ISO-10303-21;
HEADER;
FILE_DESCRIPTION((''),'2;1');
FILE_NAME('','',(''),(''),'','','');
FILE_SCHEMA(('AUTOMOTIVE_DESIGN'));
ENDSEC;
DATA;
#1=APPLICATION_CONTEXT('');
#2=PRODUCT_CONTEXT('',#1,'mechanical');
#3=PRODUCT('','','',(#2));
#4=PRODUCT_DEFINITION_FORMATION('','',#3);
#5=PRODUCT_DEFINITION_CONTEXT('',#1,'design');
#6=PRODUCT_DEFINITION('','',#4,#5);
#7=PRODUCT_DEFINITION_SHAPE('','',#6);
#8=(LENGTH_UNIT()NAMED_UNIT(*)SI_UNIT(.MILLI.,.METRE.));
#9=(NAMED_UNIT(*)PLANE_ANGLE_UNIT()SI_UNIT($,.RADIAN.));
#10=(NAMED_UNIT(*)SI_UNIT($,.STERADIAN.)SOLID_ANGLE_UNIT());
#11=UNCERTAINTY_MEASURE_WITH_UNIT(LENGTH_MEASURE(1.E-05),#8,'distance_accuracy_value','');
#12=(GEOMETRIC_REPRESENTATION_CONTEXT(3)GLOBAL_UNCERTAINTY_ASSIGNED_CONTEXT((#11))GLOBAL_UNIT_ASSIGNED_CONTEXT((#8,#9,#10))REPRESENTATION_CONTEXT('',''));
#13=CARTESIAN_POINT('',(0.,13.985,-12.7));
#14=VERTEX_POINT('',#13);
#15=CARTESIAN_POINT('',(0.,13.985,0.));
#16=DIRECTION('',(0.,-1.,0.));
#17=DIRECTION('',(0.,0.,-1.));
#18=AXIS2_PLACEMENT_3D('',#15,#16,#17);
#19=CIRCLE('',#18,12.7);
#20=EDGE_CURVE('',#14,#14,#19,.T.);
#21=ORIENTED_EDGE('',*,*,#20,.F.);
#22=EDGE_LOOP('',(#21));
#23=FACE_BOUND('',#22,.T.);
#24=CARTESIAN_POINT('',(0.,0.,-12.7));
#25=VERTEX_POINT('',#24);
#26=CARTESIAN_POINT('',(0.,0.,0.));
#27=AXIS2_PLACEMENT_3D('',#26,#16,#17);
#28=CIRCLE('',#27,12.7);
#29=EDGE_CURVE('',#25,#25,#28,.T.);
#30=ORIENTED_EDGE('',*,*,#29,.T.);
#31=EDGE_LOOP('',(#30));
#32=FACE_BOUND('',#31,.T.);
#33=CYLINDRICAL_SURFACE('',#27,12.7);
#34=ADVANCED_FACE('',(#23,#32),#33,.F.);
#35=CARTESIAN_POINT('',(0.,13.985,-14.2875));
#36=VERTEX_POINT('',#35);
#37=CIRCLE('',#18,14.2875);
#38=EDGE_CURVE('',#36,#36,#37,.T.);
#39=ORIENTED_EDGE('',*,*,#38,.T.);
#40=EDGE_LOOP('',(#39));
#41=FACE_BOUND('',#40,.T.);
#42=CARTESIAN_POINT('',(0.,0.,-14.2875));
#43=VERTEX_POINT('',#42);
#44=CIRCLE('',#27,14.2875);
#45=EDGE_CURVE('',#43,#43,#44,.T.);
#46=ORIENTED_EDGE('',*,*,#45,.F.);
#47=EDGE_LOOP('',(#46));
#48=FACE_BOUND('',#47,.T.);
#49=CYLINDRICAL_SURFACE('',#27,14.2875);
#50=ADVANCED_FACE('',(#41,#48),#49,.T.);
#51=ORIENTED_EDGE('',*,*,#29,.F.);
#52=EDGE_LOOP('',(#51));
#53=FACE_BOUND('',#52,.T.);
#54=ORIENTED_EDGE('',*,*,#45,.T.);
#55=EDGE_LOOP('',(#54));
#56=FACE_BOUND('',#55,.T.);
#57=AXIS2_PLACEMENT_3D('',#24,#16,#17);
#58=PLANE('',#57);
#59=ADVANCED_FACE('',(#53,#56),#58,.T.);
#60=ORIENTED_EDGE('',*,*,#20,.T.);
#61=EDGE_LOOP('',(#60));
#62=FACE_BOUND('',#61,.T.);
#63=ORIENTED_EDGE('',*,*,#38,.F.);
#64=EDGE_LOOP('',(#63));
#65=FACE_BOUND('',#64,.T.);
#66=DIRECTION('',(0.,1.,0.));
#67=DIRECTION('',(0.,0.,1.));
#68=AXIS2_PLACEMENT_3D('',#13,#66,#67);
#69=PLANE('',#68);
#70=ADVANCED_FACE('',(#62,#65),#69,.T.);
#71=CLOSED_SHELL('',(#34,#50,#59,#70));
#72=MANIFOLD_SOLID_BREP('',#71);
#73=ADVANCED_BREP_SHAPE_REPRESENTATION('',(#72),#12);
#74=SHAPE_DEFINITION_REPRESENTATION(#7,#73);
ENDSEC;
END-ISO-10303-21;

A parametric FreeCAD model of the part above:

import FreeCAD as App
import Part
import Sketcher
from FreeCAD import Vector
Q = App.Units.Quantity

doc = App.newDocument("Part")
body = doc.addObject("PartDesign::Body", "Body")

# Sketch on YZ plane
sketch1 = body.newObject("Sketcher::SketchObject", "Sketch")
sketch1.AttachmentSupport = (doc.getObject("YZ_Plane"), [""])
sketch1.MapMode = "FlatFace"
sketch1.addGeometry([
    Part.LineSegment(Vector(14, -12.7, 0), Vector(0, -12.7, 0)),
    Part.LineSegment(Vector(0, -12.7, 0), Vector(0, -14.3, 0)),
    Part.LineSegment(Vector(0, -14.3, 0), Vector(14, -14.3, 0)),
    Part.LineSegment(Vector(14, -14.3, 0), Vector(14, -12.7, 0)),
], False)
sketch1.addConstraint([
    Sketcher.Constraint("Coincident", 0, 2, 1, 1),
    Sketcher.Constraint("Coincident", 1, 2, 2, 1),
    Sketcher.Constraint("Coincident", 2, 2, 3, 1),
    Sketcher.Constraint("Coincident", 3, 2, 0, 1),
    Sketcher.Constraint("Horizontal", 0),
    Sketcher.Constraint("Vertical", 1),
    Sketcher.Constraint("Horizontal", 2),
    Sketcher.Constraint("Vertical", 3),
    Sketcher.Constraint("PointOnObject", 0, 2, -2),
    Sketcher.Constraint("DistanceY", 0, 2, -1, 1, Q("0.5 in")),
    Sketcher.Constraint("DistanceY", 1, 2, 1, 1, Q("0.0625 in")),
    Sketcher.Constraint("DistanceX", 0, 2, 0, 1, 13.985),
])
revolution = body.newObject("PartDesign::Revolution", "Revolution")
revolution.Profile = sketch1
revolution.ReferenceAxis = (sketch1, ["H_Axis"])
revolution.Angle = 360

doc.recompute()
